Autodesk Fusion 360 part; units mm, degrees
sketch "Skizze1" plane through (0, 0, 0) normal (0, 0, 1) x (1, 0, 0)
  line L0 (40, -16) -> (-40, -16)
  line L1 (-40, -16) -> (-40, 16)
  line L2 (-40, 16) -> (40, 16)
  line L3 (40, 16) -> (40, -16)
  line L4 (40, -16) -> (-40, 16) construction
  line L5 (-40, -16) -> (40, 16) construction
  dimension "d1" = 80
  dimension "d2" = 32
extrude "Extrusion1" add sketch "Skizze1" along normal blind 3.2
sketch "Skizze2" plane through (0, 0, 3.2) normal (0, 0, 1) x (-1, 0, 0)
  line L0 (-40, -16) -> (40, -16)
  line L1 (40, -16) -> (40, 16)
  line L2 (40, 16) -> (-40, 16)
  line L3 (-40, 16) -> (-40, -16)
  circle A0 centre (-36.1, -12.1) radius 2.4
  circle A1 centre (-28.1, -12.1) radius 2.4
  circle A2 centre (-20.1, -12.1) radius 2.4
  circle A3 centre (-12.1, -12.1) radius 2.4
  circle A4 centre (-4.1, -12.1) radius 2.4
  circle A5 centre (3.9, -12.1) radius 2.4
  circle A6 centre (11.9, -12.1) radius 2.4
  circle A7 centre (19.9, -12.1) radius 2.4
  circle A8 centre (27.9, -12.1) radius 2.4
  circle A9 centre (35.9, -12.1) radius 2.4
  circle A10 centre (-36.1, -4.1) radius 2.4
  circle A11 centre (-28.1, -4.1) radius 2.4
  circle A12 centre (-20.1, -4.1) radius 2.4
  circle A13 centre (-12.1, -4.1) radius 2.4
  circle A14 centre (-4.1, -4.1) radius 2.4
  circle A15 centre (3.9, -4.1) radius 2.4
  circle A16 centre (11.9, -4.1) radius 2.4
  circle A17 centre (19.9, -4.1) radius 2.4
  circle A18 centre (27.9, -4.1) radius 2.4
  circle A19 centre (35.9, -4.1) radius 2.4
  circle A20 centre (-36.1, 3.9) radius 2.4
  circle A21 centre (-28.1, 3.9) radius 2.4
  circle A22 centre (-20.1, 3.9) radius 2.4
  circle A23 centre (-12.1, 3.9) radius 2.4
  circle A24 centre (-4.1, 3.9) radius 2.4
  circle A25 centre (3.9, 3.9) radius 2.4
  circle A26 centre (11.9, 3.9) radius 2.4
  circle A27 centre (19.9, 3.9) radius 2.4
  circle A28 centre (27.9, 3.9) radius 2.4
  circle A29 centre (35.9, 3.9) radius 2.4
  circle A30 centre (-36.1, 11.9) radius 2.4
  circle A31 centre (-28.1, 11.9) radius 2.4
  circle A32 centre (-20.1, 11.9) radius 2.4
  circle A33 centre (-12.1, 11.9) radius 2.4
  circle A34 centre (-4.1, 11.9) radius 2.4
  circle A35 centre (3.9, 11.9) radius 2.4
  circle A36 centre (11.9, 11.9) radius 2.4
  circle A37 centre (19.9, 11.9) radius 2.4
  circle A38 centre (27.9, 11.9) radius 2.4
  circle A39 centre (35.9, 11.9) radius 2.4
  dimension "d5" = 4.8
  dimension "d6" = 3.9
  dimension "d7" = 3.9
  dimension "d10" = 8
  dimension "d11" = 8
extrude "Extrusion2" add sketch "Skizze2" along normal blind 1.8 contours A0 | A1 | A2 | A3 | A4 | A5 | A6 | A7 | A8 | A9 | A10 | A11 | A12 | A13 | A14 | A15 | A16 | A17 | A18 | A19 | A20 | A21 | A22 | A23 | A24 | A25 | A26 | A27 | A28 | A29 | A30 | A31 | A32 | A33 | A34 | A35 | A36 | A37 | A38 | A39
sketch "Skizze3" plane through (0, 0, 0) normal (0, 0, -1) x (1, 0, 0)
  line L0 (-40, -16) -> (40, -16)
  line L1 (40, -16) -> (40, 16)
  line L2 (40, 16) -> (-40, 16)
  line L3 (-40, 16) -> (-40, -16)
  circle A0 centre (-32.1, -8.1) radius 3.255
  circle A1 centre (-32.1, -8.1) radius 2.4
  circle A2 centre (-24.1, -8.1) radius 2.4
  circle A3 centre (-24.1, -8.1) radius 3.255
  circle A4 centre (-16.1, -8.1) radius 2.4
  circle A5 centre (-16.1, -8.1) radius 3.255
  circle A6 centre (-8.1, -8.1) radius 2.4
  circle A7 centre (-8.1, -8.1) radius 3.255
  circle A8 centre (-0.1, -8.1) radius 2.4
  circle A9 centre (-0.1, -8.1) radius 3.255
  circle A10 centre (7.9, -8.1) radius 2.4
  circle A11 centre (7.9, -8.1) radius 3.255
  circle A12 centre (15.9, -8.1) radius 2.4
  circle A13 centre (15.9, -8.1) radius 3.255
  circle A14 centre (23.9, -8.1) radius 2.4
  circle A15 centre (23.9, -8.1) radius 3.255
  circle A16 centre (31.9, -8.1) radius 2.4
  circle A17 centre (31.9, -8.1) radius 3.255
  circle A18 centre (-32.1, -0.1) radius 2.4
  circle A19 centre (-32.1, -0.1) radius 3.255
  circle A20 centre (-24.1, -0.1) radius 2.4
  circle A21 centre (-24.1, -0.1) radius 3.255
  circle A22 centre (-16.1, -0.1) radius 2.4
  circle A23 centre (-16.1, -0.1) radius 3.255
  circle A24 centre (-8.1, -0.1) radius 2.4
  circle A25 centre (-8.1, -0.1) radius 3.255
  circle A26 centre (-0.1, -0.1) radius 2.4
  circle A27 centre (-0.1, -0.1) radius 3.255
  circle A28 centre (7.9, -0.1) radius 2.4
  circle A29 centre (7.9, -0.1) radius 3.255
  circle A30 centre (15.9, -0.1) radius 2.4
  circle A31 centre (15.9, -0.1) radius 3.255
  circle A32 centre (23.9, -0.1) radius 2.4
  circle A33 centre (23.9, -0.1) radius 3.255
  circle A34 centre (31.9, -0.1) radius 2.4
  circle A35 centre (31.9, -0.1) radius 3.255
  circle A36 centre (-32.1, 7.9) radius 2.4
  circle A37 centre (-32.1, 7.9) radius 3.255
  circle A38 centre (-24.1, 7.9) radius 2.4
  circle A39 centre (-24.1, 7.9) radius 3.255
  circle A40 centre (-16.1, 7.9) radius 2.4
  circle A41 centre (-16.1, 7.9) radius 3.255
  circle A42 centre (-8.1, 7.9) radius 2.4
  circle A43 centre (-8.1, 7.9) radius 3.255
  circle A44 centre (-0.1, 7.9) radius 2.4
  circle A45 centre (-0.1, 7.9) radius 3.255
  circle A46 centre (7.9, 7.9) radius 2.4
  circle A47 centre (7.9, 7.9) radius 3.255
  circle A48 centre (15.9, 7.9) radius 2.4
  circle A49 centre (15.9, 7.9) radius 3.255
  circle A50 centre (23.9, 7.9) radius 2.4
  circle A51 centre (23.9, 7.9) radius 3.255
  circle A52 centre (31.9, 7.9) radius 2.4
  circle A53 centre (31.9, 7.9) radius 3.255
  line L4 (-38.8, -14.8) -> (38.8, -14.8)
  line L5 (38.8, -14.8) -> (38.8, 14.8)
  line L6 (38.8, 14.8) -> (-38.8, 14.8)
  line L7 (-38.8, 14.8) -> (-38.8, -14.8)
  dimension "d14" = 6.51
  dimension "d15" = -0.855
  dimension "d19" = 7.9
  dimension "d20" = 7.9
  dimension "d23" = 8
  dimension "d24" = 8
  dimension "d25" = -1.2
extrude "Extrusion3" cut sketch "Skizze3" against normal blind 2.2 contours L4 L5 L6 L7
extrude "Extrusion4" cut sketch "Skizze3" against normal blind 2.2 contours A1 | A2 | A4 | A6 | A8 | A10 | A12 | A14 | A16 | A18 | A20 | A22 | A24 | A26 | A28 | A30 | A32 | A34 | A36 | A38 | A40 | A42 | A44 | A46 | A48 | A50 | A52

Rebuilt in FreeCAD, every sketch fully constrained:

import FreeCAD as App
import Part
import Sketcher
from FreeCAD import Vector


def add_polygon(sketch, points):
    """Adds a closed chain of lines whose ends are joined by coincident constraints."""
    first, n = sketch.GeometryCount, len(points)
    for a, b in zip(points, points[1:] + points[:1]):
        sketch.addGeometry(Part.LineSegment(App.Vector(*a, 0), App.Vector(*b, 0)), False)
    for i in range(n):
        sketch.addConstraint(Sketcher.Constraint("Coincident", first + i, 2, first + (i + 1) % n, 1))

doc = App.newDocument("Part")
params = doc.addObject("Spreadsheet::Sheet", "Params")
for row, (alias, value) in enumerate([
    ("sketch1_width", "80 mm"),
    ("sketch1_height", "32 mm"),
    ("pad1_length", "3.2 mm"),
    ("sketch2_diameter", "4.8 mm"),
    ("pad2_length", "1.8 mm"),
    ("sketch3_diameter", "6.51 mm"),
    ("sketch3_width", "77.6 mm"),
    ("sketch3_height", "29.6 mm"),
    ("pocket1_length", "2.2 mm"),
    ("sketch4_diameter", "4.8 mm"),
    ("pocket2_length", "2.2 mm"),
], start=1):
    params.set(f"A{row}", alias)
    params.set(f"B{row}", "=" + value)
    params.setAlias(f"B{row}", alias)

body = doc.addObject("PartDesign::Body", "Body")

sketch1 = doc.addObject("Sketcher::SketchObject", "Sketch")
body.addObject(sketch1)
sketch1.AttachmentSupport = (doc.XY_Plane, [""])
sketch1.MapMode = "FlatFace"
add_polygon(sketch1, [(-40, -16), (40, -16), (40, 16), (-40, 16)])
sketch1.addConstraint(Sketcher.Constraint("Horizontal", 0))
sketch1.addConstraint(Sketcher.Constraint("Vertical", 1))
sketch1.addConstraint(Sketcher.Constraint("Horizontal", 2))
sketch1.addConstraint(Sketcher.Constraint("Vertical", 3))
sketch1.addConstraint(Sketcher.Constraint("Symmetric", 0, 2, 2, 2, -1, 1))
sketch1.addConstraint(Sketcher.Constraint("DistanceX", 0, 1, 0, 2, 80.0))
sketch1.addConstraint(Sketcher.Constraint("DistanceY", 1, 1, 1, 2, 32.0))
sketch1.setExpression("Constraints[9]", "Params.sketch1_width")
sketch1.setExpression("Constraints[10]", "Params.sketch1_height")
pad1 = doc.addObject("PartDesign::Pad", "Pad")
body.addObject(pad1)
pad1.Profile = sketch1
pad1.setExpression("Length", "Params.pad1_length")

sketch2 = doc.addObject("Sketcher::SketchObject", "Sketch001")
body.addObject(sketch2)
sketch2.AttachmentSupport = (doc.XY_Plane, [""])
sketch2.MapMode = "FlatFace"
sketch2.AttachmentOffset = App.Placement(Vector(0, 0, 3.2), App.Rotation())
sketch2.addGeometry(Part.Circle(Vector(36.1, 12.1, 0), Vector(0, 0, 1), 2.4), False)
sketch2.addGeometry(Part.Circle(Vector(28.1, 12.1, 0), Vector(0, 0, 1), 2.4), False)
sketch2.addGeometry(Part.Circle(Vector(20.1, 12.1, 0), Vector(0, 0, 1), 2.4), False)
sketch2.addGeometry(Part.Circle(Vector(12.1, 12.1, 0), Vector(0, 0, 1), 2.4), False)
sketch2.addGeometry(Part.Circle(Vector(4.1, 12.1, 0), Vector(0, 0, 1), 2.4), False)
sketch2.addGeometry(Part.Circle(Vector(-3.9, 12.1, 0), Vector(0, 0, 1), 2.4), False)
sketch2.addGeometry(Part.Circle(Vector(-11.9, 12.1, 0), Vector(0, 0, 1), 2.4), False)
sketch2.addGeometry(Part.Circle(Vector(-19.9, 12.1, 0), Vector(0, 0, 1), 2.4), False)
sketch2.addGeometry(Part.Circle(Vector(-27.9, 12.1, 0), Vector(0, 0, 1), 2.4), False)
sketch2.addGeometry(Part.Circle(Vector(-35.9, 12.1, 0), Vector(0, 0, 1), 2.4), False)
sketch2.addGeometry(Part.Circle(Vector(36.1, 4.1, 0), Vector(0, 0, 1), 2.4), False)
sketch2.addGeometry(Part.Circle(Vector(28.1, 4.1, 0), Vector(0, 0, 1), 2.4), False)
sketch2.addGeometry(Part.Circle(Vector(20.1, 4.1, 0), Vector(0, 0, 1), 2.4), False)
sketch2.addGeometry(Part.Circle(Vector(12.1, 4.1, 0), Vector(0, 0, 1), 2.4), False)
sketch2.addGeometry(Part.Circle(Vector(4.1, 4.1, 0), Vector(0, 0, 1), 2.4), False)
sketch2.addGeometry(Part.Circle(Vector(-3.9, 4.1, 0), Vector(0, 0, 1), 2.4), False)
sketch2.addGeometry(Part.Circle(Vector(-11.9, 4.1, 0), Vector(0, 0, 1), 2.4), False)
sketch2.addGeometry(Part.Circle(Vector(-19.9, 4.1, 0), Vector(0, 0, 1), 2.4), False)
sketch2.addGeometry(Part.Circle(Vector(-27.9, 4.1, 0), Vector(0, 0, 1), 2.4), False)
sketch2.addGeometry(Part.Circle(Vector(-35.9, 4.1, 0), Vector(0, 0, 1), 2.4), False)
sketch2.addGeometry(Part.Circle(Vector(36.1, -3.9, 0), Vector(0, 0, 1), 2.4), False)
sketch2.addGeometry(Part.Circle(Vector(28.1, -3.9, 0), Vector(0, 0, 1), 2.4), False)
sketch2.addGeometry(Part.Circle(Vector(20.1, -3.9, 0), Vector(0, 0, 1), 2.4), False)
sketch2.addGeometry(Part.Circle(Vector(12.1, -3.9, 0), Vector(0, 0, 1), 2.4), False)
sketch2.addGeometry(Part.Circle(Vector(4.1, -3.9, 0), Vector(0, 0, 1), 2.4), False)
sketch2.addGeometry(Part.Circle(Vector(-3.9, -3.9, 0), Vector(0, 0, 1), 2.4), False)
sketch2.addGeometry(Part.Circle(Vector(-11.9, -3.9, 0), Vector(0, 0, 1), 2.4), False)
sketch2.addGeometry(Part.Circle(Vector(-19.9, -3.9, 0), Vector(0, 0, 1), 2.4), False)
sketch2.addGeometry(Part.Circle(Vector(-27.9, -3.9, 0), Vector(0, 0, 1), 2.4), False)
sketch2.addGeometry(Part.Circle(Vector(-35.9, -3.9, 0), Vector(0, 0, 1), 2.4), False)
sketch2.addGeometry(Part.Circle(Vector(36.1, -11.9, 0), Vector(0, 0, 1), 2.4), False)
sketch2.addGeometry(Part.Circle(Vector(28.1, -11.9, 0), Vector(0, 0, 1), 2.4), False)
sketch2.addGeometry(Part.Circle(Vector(20.1, -11.9, 0), Vector(0, 0, 1), 2.4), False)
sketch2.addGeometry(Part.Circle(Vector(12.1, -11.9, 0), Vector(0, 0, 1), 2.4), False)
sketch2.addGeometry(Part.Circle(Vector(4.1, -11.9, 0), Vector(0, 0, 1), 2.4), False)
sketch2.addGeometry(Part.Circle(Vector(-3.9, -11.9, 0), Vector(0, 0, 1), 2.4), False)
sketch2.addGeometry(Part.Circle(Vector(-11.9, -11.9, 0), Vector(0, 0, 1), 2.4), False)
sketch2.addGeometry(Part.Circle(Vector(-19.9, -11.9, 0), Vector(0, 0, 1), 2.4), False)
sketch2.addGeometry(Part.Circle(Vector(-27.9, -11.9, 0), Vector(0, 0, 1), 2.4), False)
sketch2.addGeometry(Part.Circle(Vector(-35.9, -11.9, 0), Vector(0, 0, 1), 2.4), False)
sketch2.addConstraint(Sketcher.Constraint("Equal", 0, 1))
sketch2.addConstraint(Sketcher.Constraint("Equal", 1, 2))
sketch2.addConstraint(Sketcher.Constraint("Equal", 2, 3))
sketch2.addConstraint(Sketcher.Constraint("Equal", 3, 4))
sketch2.addConstraint(Sketcher.Constraint("Equal", 4, 5))
sketch2.addConstraint(Sketcher.Constraint("Equal", 5, 6))
sketch2.addConstraint(Sketcher.Constraint("Equal", 6, 7))
sketch2.addConstraint(Sketcher.Constraint("Equal", 7, 8))
sketch2.addConstraint(Sketcher.Constraint("Equal", 8, 9))
sketch2.addConstraint(Sketcher.Constraint("Equal", 9, 10))
sketch2.addConstraint(Sketcher.Constraint("Equal", 10, 11))
sketch2.addConstraint(Sketcher.Constraint("Equal", 11, 12))
sketch2.addConstraint(Sketcher.Constraint("Equal", 12, 13))
sketch2.addConstraint(Sketcher.Constraint("Equal", 13, 14))
sketch2.addConstraint(Sketcher.Constraint("Equal", 14, 15))
sketch2.addConstraint(Sketcher.Constraint("Equal", 15, 16))
sketch2.addConstraint(Sketcher.Constraint("Equal", 16, 17))
sketch2.addConstraint(Sketcher.Constraint("Equal", 17, 18))
sketch2.addConstraint(Sketcher.Constraint("Equal", 18, 19))
sketch2.addConstraint(Sketcher.Constraint("Equal", 19, 20))
sketch2.addConstraint(Sketcher.Constraint("Equal", 20, 21))
sketch2.addConstraint(Sketcher.Constraint("Equal", 21, 22))
sketch2.addConstraint(Sketcher.Constraint("Equal", 22, 23))
sketch2.addConstraint(Sketcher.Constraint("Equal", 23, 24))
sketch2.addConstraint(Sketcher.Constraint("Equal", 24, 25))
sketch2.addConstraint(Sketcher.Constraint("Equal", 25, 26))
sketch2.addConstraint(Sketcher.Constraint("Equal", 26, 27))
sketch2.addConstraint(Sketcher.Constraint("Equal", 27, 28))
sketch2.addConstraint(Sketcher.Constraint("Equal", 28, 29))
sketch2.addConstraint(Sketcher.Constraint("Equal", 29, 30))
sketch2.addConstraint(Sketcher.Constraint("Equal", 30, 31))
sketch2.addConstraint(Sketcher.Constraint("Equal", 31, 32))
sketch2.addConstraint(Sketcher.Constraint("Equal", 32, 33))
sketch2.addConstraint(Sketcher.Constraint("Equal", 33, 34))
sketch2.addConstraint(Sketcher.Constraint("Equal", 34, 35))
sketch2.addConstraint(Sketcher.Constraint("Equal", 35, 36))
sketch2.addConstraint(Sketcher.Constraint("Equal", 36, 37))
sketch2.addConstraint(Sketcher.Constraint("Equal", 37, 38))
sketch2.addConstraint(Sketcher.Constraint("Equal", 38, 39))
sketch2.addConstraint(Sketcher.Constraint("Horizontal", 0, 3, 1, 3))
sketch2.addConstraint(Sketcher.Constraint("Horizontal", 1, 3, 2, 3))
sketch2.addConstraint(Sketcher.Constraint("Horizontal", 2, 3, 3, 3))
sketch2.addConstraint(Sketcher.Constraint("Horizontal", 3, 3, 4, 3))
sketch2.addConstraint(Sketcher.Constraint("Horizontal", 4, 3, 5, 3))
sketch2.addConstraint(Sketcher.Constraint("Horizontal", 5, 3, 6, 3))
sketch2.addConstraint(Sketcher.Constraint("Horizontal", 6, 3, 7, 3))
sketch2.addConstraint(Sketcher.Constraint("Horizontal", 7, 3, 8, 3))
sketch2.addConstraint(Sketcher.Constraint("Horizontal", 8, 3, 9, 3))
sketch2.addConstraint(Sketcher.Constraint("Horizontal", 10, 3, 11, 3))
sketch2.addConstraint(Sketcher.Constraint("Horizontal", 11, 3, 12, 3))
sketch2.addConstraint(Sketcher.Constraint("Horizontal", 12, 3, 13, 3))
sketch2.addConstraint(Sketcher.Constraint("Horizontal", 13, 3, 14, 3))
sketch2.addConstraint(Sketcher.Constraint("Horizontal", 14, 3, 15, 3))
sketch2.addConstraint(Sketcher.Constraint("Horizontal", 15, 3, 16, 3))
sketch2.addConstraint(Sketcher.Constraint("Horizontal", 16, 3, 17, 3))
sketch2.addConstraint(Sketcher.Constraint("Horizontal", 17, 3, 18, 3))
sketch2.addConstraint(Sketcher.Constraint("Horizontal", 18, 3, 19, 3))
sketch2.addConstraint(Sketcher.Constraint("Horizontal", 20, 3, 21, 3))
sketch2.addConstraint(Sketcher.Constraint("Horizontal", 21, 3, 22, 3))
sketch2.addConstraint(Sketcher.Constraint("Horizontal", 22, 3, 23, 3))
sketch2.addConstraint(Sketcher.Constraint("Horizontal", 23, 3, 24, 3))
sketch2.addConstraint(Sketcher.Constraint("Horizontal", 24, 3, 25, 3))
sketch2.addConstraint(Sketcher.Constraint("Horizontal", 25, 3, 26, 3))
sketch2.addConstraint(Sketcher.Constraint("Horizontal", 26, 3, 27, 3))
sketch2.addConstraint(Sketcher.Constraint("Horizontal", 27, 3, 28, 3))
sketch2.addConstraint(Sketcher.Constraint("Horizontal", 28, 3, 29, 3))
sketch2.addConstraint(Sketcher.Constraint("Horizontal", 30, 3, 31, 3))
sketch2.addConstraint(Sketcher.Constraint("Horizontal", 31, 3, 32, 3))
sketch2.addConstraint(Sketcher.Constraint("Horizontal", 32, 3, 33, 3))
sketch2.addConstraint(Sketcher.Constraint("Horizontal", 33, 3, 34, 3))
sketch2.addConstraint(Sketcher.Constraint("Horizontal", 34, 3, 35, 3))
sketch2.addConstraint(Sketcher.Constraint("Horizontal", 35, 3, 36, 3))
sketch2.addConstraint(Sketcher.Constraint("Horizontal", 36, 3, 37, 3))
sketch2.addConstraint(Sketcher.Constraint("Horizontal", 37, 3, 38, 3))
sketch2.addConstraint(Sketcher.Constraint("Horizontal", 38, 3, 39, 3))
sketch2.addConstraint(Sketcher.Constraint("Vertical", 0, 3, 10, 3))
sketch2.addConstraint(Sketcher.Constraint("Vertical", 1, 3, 11, 3))
sketch2.addConstraint(Sketcher.Constraint("Vertical", 2, 3, 12, 3))
sketch2.addConstraint(Sketcher.Constraint("Vertical", 3, 3, 13, 3))
sketch2.addConstraint(Sketcher.Constraint("Vertical", 4, 3, 14, 3))
sketch2.addConstraint(Sketcher.Constraint("Vertical", 5, 3, 15, 3))
sketch2.addConstraint(Sketcher.Constraint("Vertical", 6, 3, 16, 3))
sketch2.addConstraint(Sketcher.Constraint("Vertical", 7, 3, 17, 3))
sketch2.addConstraint(Sketcher.Constraint("Vertical", 8, 3, 18, 3))
sketch2.addConstraint(Sketcher.Constraint("Vertical", 9, 3, 19, 3))
sketch2.addConstraint(Sketcher.Constraint("Vertical", 10, 3, 20, 3))
sketch2.addConstraint(Sketcher.Constraint("Vertical", 11, 3, 21, 3))
sketch2.addConstraint(Sketcher.Constraint("Vertical", 12, 3, 22, 3))
sketch2.addConstraint(Sketcher.Constraint("Vertical", 13, 3, 23, 3))
sketch2.addConstraint(Sketcher.Constraint("Vertical", 14, 3, 24, 3))
sketch2.addConstraint(Sketcher.Constraint("Vertical", 15, 3, 25, 3))
sketch2.addConstraint(Sketcher.Constraint("Vertical", 16, 3, 26, 3))
sketch2.addConstraint(Sketcher.Constraint("Vertical", 17, 3, 27, 3))
sketch2.addConstraint(Sketcher.Constraint("Vertical", 18, 3, 28, 3))
sketch2.addConstraint(Sketcher.Constraint("Vertical", 19, 3, 29, 3))
sketch2.addConstraint(Sketcher.Constraint("Vertical", 20, 3, 30, 3))
sketch2.addConstraint(Sketcher.Constraint("Vertical", 21, 3, 31, 3))
sketch2.addConstraint(Sketcher.Constraint("Vertical", 22, 3, 32, 3))
sketch2.addConstraint(Sketcher.Constraint("Vertical", 23, 3, 33, 3))
sketch2.addConstraint(Sketcher.Constraint("Vertical", 24, 3, 34, 3))
sketch2.addConstraint(Sketcher.Constraint("Vertical", 25, 3, 35, 3))
sketch2.addConstraint(Sketcher.Constraint("Vertical", 26, 3, 36, 3))
sketch2.addConstraint(Sketcher.Constraint("Vertical", 27, 3, 37, 3))
sketch2.addConstraint(Sketcher.Constraint("Vertical", 28, 3, 38, 3))
sketch2.addConstraint(Sketcher.Constraint("Vertical", 29, 3, 39, 3))
sketch2.addConstraint(Sketcher.Constraint("Diameter", 0, 4.8))
sketch2.addConstraint(Sketcher.Constraint("DistanceX", 1, 3, 0, 3, 8.0))
sketch2.addConstraint(Sketcher.Constraint("DistanceX", 2, 3, 1, 3, 8.0))
sketch2.addConstraint(Sketcher.Constraint("DistanceX", 3, 3, 2, 3, 8.0))
sketch2.addConstraint(Sketcher.Constraint("DistanceX", 4, 3, 3, 3, 8.0))
sketch2.addConstraint(Sketcher.Constraint("DistanceX", 5, 3, 4, 3, 8.0))
sketch2.addConstraint(Sketcher.Constraint("DistanceX", 6, 3, 5, 3, 8.0))
sketch2.addConstraint(Sketcher.Constraint("DistanceX", 7, 3, 6, 3, 8.0))
sketch2.addConstraint(Sketcher.Constraint("DistanceX", 8, 3, 7, 3, 8.0))
sketch2.addConstraint(Sketcher.Constraint("DistanceX", 9, 3, 8, 3, 8.0))
sketch2.addConstraint(Sketcher.Constraint("DistanceY", 10, 3, 0, 3, 8.0))
sketch2.addConstraint(Sketcher.Constraint("DistanceY", 20, 3, 10, 3, 8.0))
sketch2.addConstraint(Sketcher.Constraint("DistanceY", 30, 3, 20, 3, 8.0))
sketch2.addConstraint(Sketcher.Constraint("DistanceX", 5, 3, -1, 1, 3.9))
sketch2.addConstraint(Sketcher.Constraint("DistanceY", 20, 3, -1, 1, 3.9))
sketch2.setExpression("Constraints[105]", "Params.sketch2_diameter")
pad2 = doc.addObject("PartDesign::Pad", "Pad001")
body.addObject(pad2)
pad2.Profile = sketch2
pad2.setExpression("Length", "Params.pad2_length")

sketch3 = doc.addObject("Sketcher::SketchObject", "Sketch002")
body.addObject(sketch3)
sketch3.AttachmentSupport = (doc.XY_Plane, [""])
sketch3.MapMode = "FlatFace"
add_polygon(sketch3, [(-38.8, -14.8), (-38.8, 14.8), (38.8, 14.8), (38.8, -14.8)])
sketch3.addGeometry(Part.Circle(Vector(-32.1, 8.1, 0), Vector(0, 0, 1), 3.3), False)
sketch3.addGeometry(Part.Circle(Vector(-24.1, 8.1, 0), Vector(0, 0, 1), 3.3), False)
sketch3.addGeometry(Part.Circle(Vector(-16.1, 8.1, 0), Vector(0, 0, 1), 3.3), False)
sketch3.addGeometry(Part.Circle(Vector(-8.1, 8.1, 0), Vector(0, 0, 1), 3.3), False)
sketch3.addGeometry(Part.Circle(Vector(-0.1, 8.1, 0), Vector(0, 0, 1), 3.3), False)
sketch3.addGeometry(Part.Circle(Vector(-32.1, 0.1, 0), Vector(0, 0, 1), 3.3), False)
sketch3.addGeometry(Part.Circle(Vector(-24.1, 0.1, 0), Vector(0, 0, 1), 3.3), False)
sketch3.addGeometry(Part.Circle(Vector(-16.1, 0.1, 0), Vector(0, 0, 1), 3.3), False)
sketch3.addGeometry(Part.Circle(Vector(-8.1, 0.1, 0), Vector(0, 0, 1), 3.3), False)
sketch3.addGeometry(Part.Circle(Vector(-0.1, 0.1, 0), Vector(0, 0, 1), 3.3), False)
sketch3.addGeometry(Part.Circle(Vector(7.9, 8.1, 0), Vector(0, 0, 1), 3.3), False)
sketch3.addGeometry(Part.Circle(Vector(15.9, 8.1, 0), Vector(0, 0, 1), 3.3), False)
sketch3.addGeometry(Part.Circle(Vector(23.9, 8.1, 0), Vector(0, 0, 1), 3.3), False)
sketch3.addGeometry(Part.Circle(Vector(31.9, 8.1, 0), Vector(0, 0, 1), 3.3), False)
sketch3.addGeometry(Part.Circle(Vector(7.9, 0.1, 0), Vector(0, 0, 1), 3.3), False)
sketch3.addGeometry(Part.Circle(Vector(15.9, 0.1, 0), Vector(0, 0, 1), 3.3), False)
sketch3.addGeometry(Part.Circle(Vector(23.9, 0.1, 0), Vector(0, 0, 1), 3.3), False)
sketch3.addGeometry(Part.Circle(Vector(31.9, 0.1, 0), Vector(0, 0, 1), 3.3), False)
sketch3.addGeometry(Part.Circle(Vector(-32.1, -7.9, 0), Vector(0, 0, 1), 3.3), False)
sketch3.addGeometry(Part.Circle(Vector(-24.1, -7.9, 0), Vector(0, 0, 1), 3.3), False)
sketch3.addGeometry(Part.Circle(Vector(-16.1, -7.9, 0), Vector(0, 0, 1), 3.3), False)
sketch3.addGeometry(Part.Circle(Vector(-8.1, -7.9, 0), Vector(0, 0, 1), 3.3), False)
sketch3.addGeometry(Part.Circle(Vector(-0.1, -7.9, 0), Vector(0, 0, 1), 3.3), False)
sketch3.addGeometry(Part.Circle(Vector(7.9, -7.9, 0), Vector(0, 0, 1), 3.3), False)
sketch3.addGeometry(Part.Circle(Vector(15.9, -7.9, 0), Vector(0, 0, 1), 3.3), False)
sketch3.addGeometry(Part.Circle(Vector(23.9, -7.9, 0), Vector(0, 0, 1), 3.3), False)
sketch3.addGeometry(Part.Circle(Vector(31.9, -7.9, 0), Vector(0, 0, 1), 3.3), False)
sketch3.addConstraint(Sketcher.Constraint("Vertical", 0))
sketch3.addConstraint(Sketcher.Constraint("Horizontal", 1))
sketch3.addConstraint(Sketcher.Constraint("Vertical", 2))
sketch3.addConstraint(Sketcher.Constraint("Horizontal", 3))
sketch3.addConstraint(Sketcher.Constraint("Equal", 4, 5))
sketch3.addConstraint(Sketcher.Constraint("Equal", 5, 6))
sketch3.addConstraint(Sketcher.Constraint("Equal", 6, 7))
sketch3.addConstraint(Sketcher.Constraint("Equal", 7, 8))
sketch3.addConstraint(Sketcher.Constraint("Equal", 8, 9))
sketch3.addConstraint(Sketcher.Constraint("Equal", 9, 10))
sketch3.addConstraint(Sketcher.Constraint("Equal", 10, 11))
sketch3.addConstraint(Sketcher.Constraint("Equal", 11, 12))
sketch3.addConstraint(Sketcher.Constraint("Equal", 12, 13))
sketch3.addConstraint(Sketcher.Constraint("Equal", 13, 14))
sketch3.addConstraint(Sketcher.Constraint("Equal", 14, 15))
sketch3.addConstraint(Sketcher.Constraint("Equal", 15, 16))
sketch3.addConstraint(Sketcher.Constraint("Equal", 16, 17))
sketch3.addConstraint(Sketcher.Constraint("Equal", 17, 18))
sketch3.addConstraint(Sketcher.Constraint("Equal", 18, 19))
sketch3.addConstraint(Sketcher.Constraint("Equal", 19, 20))
sketch3.addConstraint(Sketcher.Constraint("Equal", 20, 21))
sketch3.addConstraint(Sketcher.Constraint("Equal", 21, 22))
sketch3.addConstraint(Sketcher.Constraint("Equal", 22, 23))
sketch3.addConstraint(Sketcher.Constraint("Equal", 23, 24))
sketch3.addConstraint(Sketcher.Constraint("Equal", 24, 25))
sketch3.addConstraint(Sketcher.Constraint("Equal", 25, 26))
sketch3.addConstraint(Sketcher.Constraint("Equal", 26, 27))
sketch3.addConstraint(Sketcher.Constraint("Equal", 27, 28))
sketch3.addConstraint(Sketcher.Constraint("Equal", 28, 29))
sketch3.addConstraint(Sketcher.Constraint("Equal", 29, 30))
sketch3.addConstraint(Sketcher.Constraint("Symmetric", 0, 2, 2, 2, -1, 1))
sketch3.addConstraint(Sketcher.Constraint("Horizontal", 4, 3, 5, 3))
sketch3.addConstraint(Sketcher.Constraint("Horizontal", 5, 3, 6, 3))
sketch3.addConstraint(Sketcher.Constraint("Horizontal", 6, 3, 7, 3))
sketch3.addConstraint(Sketcher.Constraint("Horizontal", 7, 3, 8, 3))
sketch3.addConstraint(Sketcher.Constraint("Horizontal", 9, 3, 10, 3))
sketch3.addConstraint(Sketcher.Constraint("Horizontal", 10, 3, 11, 3))
sketch3.addConstraint(Sketcher.Constraint("Horizontal", 11, 3, 12, 3))
sketch3.addConstraint(Sketcher.Constraint("Horizontal", 12, 3, 13, 3))
sketch3.addConstraint(Sketcher.Constraint("Horizontal", 8, 3, 14, 3))
sketch3.addConstraint(Sketcher.Constraint("Horizontal", 14, 3, 15, 3))
sketch3.addConstraint(Sketcher.Constraint("Horizontal", 15, 3, 16, 3))
sketch3.addConstraint(Sketcher.Constraint("Horizontal", 16, 3, 17, 3))
sketch3.addConstraint(Sketcher.Constraint("Horizontal", 13, 3, 18, 3))
sketch3.addConstraint(Sketcher.Constraint("Horizontal", 18, 3, 19, 3))
sketch3.addConstraint(Sketcher.Constraint("Horizontal", 19, 3, 20, 3))
sketch3.addConstraint(Sketcher.Constraint("Horizontal", 20, 3, 21, 3))
sketch3.addConstraint(Sketcher.Constraint("Horizontal", 22, 3, 23, 3))
sketch3.addConstraint(Sketcher.Constraint("Horizontal", 23, 3, 24, 3))
sketch3.addConstraint(Sketcher.Constraint("Horizontal", 24, 3, 25, 3))
sketch3.addConstraint(Sketcher.Constraint("Horizontal", 25, 3, 26, 3))
sketch3.addConstraint(Sketcher.Constraint("Horizontal", 26, 3, 27, 3))
sketch3.addConstraint(Sketcher.Constraint("Horizontal", 27, 3, 28, 3))
sketch3.addConstraint(Sketcher.Constraint("Horizontal", 28, 3, 29, 3))
sketch3.addConstraint(Sketcher.Constraint("Horizontal", 29, 3, 30, 3))
sketch3.addConstraint(Sketcher.Constraint("Vertical", 4, 3, 9, 3))
sketch3.addConstraint(Sketcher.Constraint("Vertical", 5, 3, 10, 3))
sketch3.addConstraint(Sketcher.Constraint("Vertical", 6, 3, 11, 3))
sketch3.addConstraint(Sketcher.Constraint("Vertical", 7, 3, 12, 3))
sketch3.addConstraint(Sketcher.Constraint("Vertical", 8, 3, 13, 3))
sketch3.addConstraint(Sketcher.Constraint("Vertical", 14, 3, 18, 3))
sketch3.addConstraint(Sketcher.Constraint("Vertical", 15, 3, 19, 3))
sketch3.addConstraint(Sketcher.Constraint("Vertical", 16, 3, 20, 3))
sketch3.addConstraint(Sketcher.Constraint("Vertical", 17, 3, 21, 3))
sketch3.addConstraint(Sketcher.Constraint("Vertical", 9, 3, 22, 3))
sketch3.addConstraint(Sketcher.Constraint("Vertical", 10, 3, 23, 3))
sketch3.addConstraint(Sketcher.Constraint("Vertical", 11, 3, 24, 3))
sketch3.addConstraint(Sketcher.Constraint("Vertical", 12, 3, 25, 3))
sketch3.addConstraint(Sketcher.Constraint("Vertical", 13, 3, 26, 3))
sketch3.addConstraint(Sketcher.Constraint("Vertical", 18, 3, 27, 3))
sketch3.addConstraint(Sketcher.Constraint("Vertical", 19, 3, 28, 3))
sketch3.addConstraint(Sketcher.Constraint("Vertical", 20, 3, 29, 3))
sketch3.addConstraint(Sketcher.Constraint("Vertical", 21, 3, 30, 3))
sketch3.addConstraint(Sketcher.Constraint("Diameter", 4, 6.51))
sketch3.addConstraint(Sketcher.Constraint("DistanceX", 4, 3, 5, 3, 8.0))
sketch3.addConstraint(Sketcher.Constraint("DistanceX", 5, 3, 6, 3, 8.0))
sketch3.addConstraint(Sketcher.Constraint("DistanceX", 6, 3, 7, 3, 8.0))
sketch3.addConstraint(Sketcher.Constraint("DistanceX", 7, 3, 8, 3, 8.0))
sketch3.addConstraint(Sketcher.Constraint("DistanceY", 9, 3, 4, 3, 8.0))
sketch3.addConstraint(Sketcher.Constraint("DistanceX", 8, 3, 14, 3, 8.0))
sketch3.addConstraint(Sketcher.Constraint("DistanceX", 14, 3, 15, 3, 8.0))
sketch3.addConstraint(Sketcher.Constraint("DistanceX", 15, 3, 16, 3, 8.0))
sketch3.addConstraint(Sketcher.Constraint("DistanceX", 16, 3, 17, 3, 8.0))
sketch3.addConstraint(Sketcher.Constraint("DistanceY", 22, 3, 9, 3, 8.0))
sketch3.addConstraint(Sketcher.Constraint("DistanceX", -1, 1, 14, 3, 7.9))
sketch3.addConstraint(Sketcher.Constraint("DistanceY", 22, 3, -1, 1, 7.9))
sketch3.addConstraint(Sketcher.Constraint("DistanceX", 1, 1, 1, 2, 77.6))
sketch3.addConstraint(Sketcher.Constraint("DistanceY", 0, 1, 0, 2, 29.6))
sketch3.setExpression("Constraints[77]", "Params.sketch3_diameter")
sketch3.setExpression("Constraints[90]", "Params.sketch3_width")
sketch3.setExpression("Constraints[91]", "Params.sketch3_height")
pocket1 = doc.addObject("PartDesign::Pocket", "Pocket")
body.addObject(pocket1)
pocket1.Profile = sketch3
pocket1.setExpression("Length", "Params.pocket1_length")
pocket1.Reversed = True

sketch4 = doc.addObject("Sketcher::SketchObject", "Sketch003")
body.addObject(sketch4)
sketch4.AttachmentSupport = (doc.XY_Plane, [""])
sketch4.MapMode = "FlatFace"
sketch4.addGeometry(Part.Circle(Vector(-32.1, 8.1, 0), Vector(0, 0, 1), 2.4), False)
sketch4.addGeometry(Part.Circle(Vector(-24.1, 8.1, 0), Vector(0, 0, 1), 2.4), False)
sketch4.addGeometry(Part.Circle(Vector(-16.1, 8.1, 0), Vector(0, 0, 1), 2.4), False)
sketch4.addGeometry(Part.Circle(Vector(-8.1, 8.1, 0), Vector(0, 0, 1), 2.4), False)
sketch4.addGeometry(Part.Circle(Vector(-0.1, 8.1, 0), Vector(0, 0, 1), 2.4), False)
sketch4.addGeometry(Part.Circle(Vector(7.9, 8.1, 0), Vector(0, 0, 1), 2.4), False)
sketch4.addGeometry(Part.Circle(Vector(15.9, 8.1, 0), Vector(0, 0, 1), 2.4), False)
sketch4.addGeometry(Part.Circle(Vector(23.9, 8.1, 0), Vector(0, 0, 1), 2.4), False)
sketch4.addGeometry(Part.Circle(Vector(31.9, 8.1, 0), Vector(0, 0, 1), 2.4), False)
sketch4.addGeometry(Part.Circle(Vector(-32.1, 0.1, 0), Vector(0, 0, 1), 2.4), False)
sketch4.addGeometry(Part.Circle(Vector(-24.1, 0.1, 0), Vector(0, 0, 1), 2.4), False)
sketch4.addGeometry(Part.Circle(Vector(-16.1, 0.1, 0), Vector(0, 0, 1), 2.4), False)
sketch4.addGeometry(Part.Circle(Vector(-8.1, 0.1, 0), Vector(0, 0, 1), 2.4), False)
sketch4.addGeometry(Part.Circle(Vector(-0.1, 0.1, 0), Vector(0, 0, 1), 2.4), False)
sketch4.addGeometry(Part.Circle(Vector(7.9, 0.1, 0), Vector(0, 0, 1), 2.4), False)
sketch4.addGeometry(Part.Circle(Vector(15.9, 0.1, 0), Vector(0, 0, 1), 2.4), False)
sketch4.addGeometry(Part.Circle(Vector(23.9, 0.1, 0), Vector(0, 0, 1), 2.4), False)
sketch4.addGeometry(Part.Circle(Vector(31.9, 0.1, 0), Vector(0, 0, 1), 2.4), False)
sketch4.addGeometry(Part.Circle(Vector(-32.1, -7.9, 0), Vector(0, 0, 1), 2.4), False)
sketch4.addGeometry(Part.Circle(Vector(-24.1, -7.9, 0), Vector(0, 0, 1), 2.4), False)
sketch4.addGeometry(Part.Circle(Vector(-16.1, -7.9, 0), Vector(0, 0, 1), 2.4), False)
sketch4.addGeometry(Part.Circle(Vector(-8.1, -7.9, 0), Vector(0, 0, 1), 2.4), False)
sketch4.addGeometry(Part.Circle(Vector(-0.1, -7.9, 0), Vector(0, 0, 1), 2.4), False)
sketch4.addGeometry(Part.Circle(Vector(7.9, -7.9, 0), Vector(0, 0, 1), 2.4), False)
sketch4.addGeometry(Part.Circle(Vector(15.9, -7.9, 0), Vector(0, 0, 1), 2.4), False)
sketch4.addGeometry(Part.Circle(Vector(23.9, -7.9, 0), Vector(0, 0, 1), 2.4), False)
sketch4.addGeometry(Part.Circle(Vector(31.9, -7.9, 0), Vector(0, 0, 1), 2.4), False)
sketch4.addConstraint(Sketcher.Constraint("Equal", 0, 1))
sketch4.addConstraint(Sketcher.Constraint("Equal", 1, 2))
sketch4.addConstraint(Sketcher.Constraint("Equal", 2, 3))
sketch4.addConstraint(Sketcher.Constraint("Equal", 3, 4))
sketch4.addConstraint(Sketcher.Constraint("Equal", 4, 5))
sketch4.addConstraint(Sketcher.Constraint("Equal", 5, 6))
sketch4.addConstraint(Sketcher.Constraint("Equal", 6, 7))
sketch4.addConstraint(Sketcher.Constraint("Equal", 7, 8))
sketch4.addConstraint(Sketcher.Constraint("Equal", 8, 9))
sketch4.addConstraint(Sketcher.Constraint("Equal", 9, 10))
sketch4.addConstraint(Sketcher.Constraint("Equal", 10, 11))
sketch4.addConstraint(Sketcher.Constraint("Equal", 11, 12))
sketch4.addConstraint(Sketcher.Constraint("Equal", 12, 13))
sketch4.addConstraint(Sketcher.Constraint("Equal", 13, 14))
sketch4.addConstraint(Sketcher.Constraint("Equal", 14, 15))
sketch4.addConstraint(Sketcher.Constraint("Equal", 15, 16))
sketch4.addConstraint(Sketcher.Constraint("Equal", 16, 17))
sketch4.addConstraint(Sketcher.Constraint("Equal", 17, 18))
sketch4.addConstraint(Sketcher.Constraint("Equal", 18, 19))
sketch4.addConstraint(Sketcher.Constraint("Equal", 19, 20))
sketch4.addConstraint(Sketcher.Constraint("Equal", 20, 21))
sketch4.addConstraint(Sketcher.Constraint("Equal", 21, 22))
sketch4.addConstraint(Sketcher.Constraint("Equal", 22, 23))
sketch4.addConstraint(Sketcher.Constraint("Equal", 23, 24))
sketch4.addConstraint(Sketcher.Constraint("Equal", 24, 25))
sketch4.addConstraint(Sketcher.Constraint("Equal", 25, 26))
sketch4.addConstraint(Sketcher.Constraint("Horizontal", 0, 3, 1, 3))
sketch4.addConstraint(Sketcher.Constraint("Horizontal", 1, 3, 2, 3))
sketch4.addConstraint(Sketcher.Constraint("Horizontal", 2, 3, 3, 3))
sketch4.addConstraint(Sketcher.Constraint("Horizontal", 3, 3, 4, 3))
sketch4.addConstraint(Sketcher.Constraint("Horizontal", 4, 3, 5, 3))
sketch4.addConstraint(Sketcher.Constraint("Horizontal", 5, 3, 6, 3))
sketch4.addConstraint(Sketcher.Constraint("Horizontal", 6, 3, 7, 3))
sketch4.addConstraint(Sketcher.Constraint("Horizontal", 7, 3, 8, 3))
sketch4.addConstraint(Sketcher.Constraint("Horizontal", 9, 3, 10, 3))
sketch4.addConstraint(Sketcher.Constraint("Horizontal", 10, 3, 11, 3))
sketch4.addConstraint(Sketcher.Constraint("Horizontal", 11, 3, 12, 3))
sketch4.addConstraint(Sketcher.Constraint("Horizontal", 12, 3, 13, 3))
sketch4.addConstraint(Sketcher.Constraint("Horizontal", 13, 3, 14, 3))
sketch4.addConstraint(Sketcher.Constraint("Horizontal", 14, 3, 15, 3))
sketch4.addConstraint(Sketcher.Constraint("Horizontal", 15, 3, 16, 3))
sketch4.addConstraint(Sketcher.Constraint("Horizontal", 16, 3, 17, 3))
sketch4.addConstraint(Sketcher.Constraint("Horizontal", 18, 3, 19, 3))
sketch4.addConstraint(Sketcher.Constraint("Horizontal", 19, 3, 20, 3))
sketch4.addConstraint(Sketcher.Constraint("Horizontal", 20, 3, 21, 3))
sketch4.addConstraint(Sketcher.Constraint("Horizontal", 21, 3, 22, 3))
sketch4.addConstraint(Sketcher.Constraint("Horizontal", 22, 3, 23, 3))
sketch4.addConstraint(Sketcher.Constraint("Horizontal", 23, 3, 24, 3))
sketch4.addConstraint(Sketcher.Constraint("Horizontal", 24, 3, 25, 3))
sketch4.addConstraint(Sketcher.Constraint("Horizontal", 25, 3, 26, 3))
sketch4.addConstraint(Sketcher.Constraint("Vertical", 0, 3, 9, 3))
sketch4.addConstraint(Sketcher.Constraint("Vertical", 1, 3, 10, 3))
sketch4.addConstraint(Sketcher.Constraint("Vertical", 2, 3, 11, 3))
sketch4.addConstraint(Sketcher.Constraint("Vertical", 3, 3, 12, 3))
sketch4.addConstraint(Sketcher.Constraint("Vertical", 4, 3, 13, 3))
sketch4.addConstraint(Sketcher.Constraint("Vertical", 5, 3, 14, 3))
sketch4.addConstraint(Sketcher.Constraint("Vertical", 6, 3, 15, 3))
sketch4.addConstraint(Sketcher.Constraint("Vertical", 7, 3, 16, 3))
sketch4.addConstraint(Sketcher.Constraint("Vertical", 8, 3, 17, 3))
sketch4.addConstraint(Sketcher.Constraint("Vertical", 9, 3, 18, 3))
sketch4.addConstraint(Sketcher.Constraint("Vertical", 10, 3, 19, 3))
sketch4.addConstraint(Sketcher.Constraint("Vertical", 11, 3, 20, 3))
sketch4.addConstraint(Sketcher.Constraint("Vertical", 12, 3, 21, 3))
sketch4.addConstraint(Sketcher.Constraint("Vertical", 13, 3, 22, 3))
sketch4.addConstraint(Sketcher.Constraint("Vertical", 14, 3, 23, 3))
sketch4.addConstraint(Sketcher.Constraint("Vertical", 15, 3, 24, 3))
sketch4.addConstraint(Sketcher.Constraint("Vertical", 16, 3, 25, 3))
sketch4.addConstraint(Sketcher.Constraint("Vertical", 17, 3, 26, 3))
sketch4.addConstraint(Sketcher.Constraint("DistanceX", 0, 3, 1, 3, 8.0))
sketch4.addConstraint(Sketcher.Constraint("DistanceX", 1, 3, 2, 3, 8.0))
sketch4.addConstraint(Sketcher.Constraint("DistanceX", 2, 3, 3, 3, 8.0))
sketch4.addConstraint(Sketcher.Constraint("DistanceX", 3, 3, 4, 3, 8.0))
sketch4.addConstraint(Sketcher.Constraint("DistanceX", 4, 3, 5, 3, 8.0))
sketch4.addConstraint(Sketcher.Constraint("DistanceX", 5, 3, 6, 3, 8.0))
sketch4.addConstraint(Sketcher.Constraint("DistanceX", 6, 3, 7, 3, 8.0))
sketch4.addConstraint(Sketcher.Constraint("DistanceX", 7, 3, 8, 3, 8.0))
sketch4.addConstraint(Sketcher.Constraint("DistanceY", 9, 3, 0, 3, 8.0))
sketch4.addConstraint(Sketcher.Constraint("DistanceY", 18, 3, 9, 3, 8.0))
sketch4.addConstraint(Sketcher.Constraint("Diameter", 0, 4.8))
sketch4.addConstraint(Sketcher.Constraint("DistanceX", -1, 1, 5, 3, 7.9))
sketch4.addConstraint(Sketcher.Constraint("DistanceY", 18, 3, -1, 1, 7.9))
sketch4.setExpression("Constraints[78]", "Params.sketch4_diameter")
pocket2 = doc.addObject("PartDesign::Pocket", "Pocket001")
body.addObject(pocket2)
pocket2.Profile = sketch4
pocket2.setExpression("Length", "Params.pocket2_length")
pocket2.Reversed = True

doc.recompute()
